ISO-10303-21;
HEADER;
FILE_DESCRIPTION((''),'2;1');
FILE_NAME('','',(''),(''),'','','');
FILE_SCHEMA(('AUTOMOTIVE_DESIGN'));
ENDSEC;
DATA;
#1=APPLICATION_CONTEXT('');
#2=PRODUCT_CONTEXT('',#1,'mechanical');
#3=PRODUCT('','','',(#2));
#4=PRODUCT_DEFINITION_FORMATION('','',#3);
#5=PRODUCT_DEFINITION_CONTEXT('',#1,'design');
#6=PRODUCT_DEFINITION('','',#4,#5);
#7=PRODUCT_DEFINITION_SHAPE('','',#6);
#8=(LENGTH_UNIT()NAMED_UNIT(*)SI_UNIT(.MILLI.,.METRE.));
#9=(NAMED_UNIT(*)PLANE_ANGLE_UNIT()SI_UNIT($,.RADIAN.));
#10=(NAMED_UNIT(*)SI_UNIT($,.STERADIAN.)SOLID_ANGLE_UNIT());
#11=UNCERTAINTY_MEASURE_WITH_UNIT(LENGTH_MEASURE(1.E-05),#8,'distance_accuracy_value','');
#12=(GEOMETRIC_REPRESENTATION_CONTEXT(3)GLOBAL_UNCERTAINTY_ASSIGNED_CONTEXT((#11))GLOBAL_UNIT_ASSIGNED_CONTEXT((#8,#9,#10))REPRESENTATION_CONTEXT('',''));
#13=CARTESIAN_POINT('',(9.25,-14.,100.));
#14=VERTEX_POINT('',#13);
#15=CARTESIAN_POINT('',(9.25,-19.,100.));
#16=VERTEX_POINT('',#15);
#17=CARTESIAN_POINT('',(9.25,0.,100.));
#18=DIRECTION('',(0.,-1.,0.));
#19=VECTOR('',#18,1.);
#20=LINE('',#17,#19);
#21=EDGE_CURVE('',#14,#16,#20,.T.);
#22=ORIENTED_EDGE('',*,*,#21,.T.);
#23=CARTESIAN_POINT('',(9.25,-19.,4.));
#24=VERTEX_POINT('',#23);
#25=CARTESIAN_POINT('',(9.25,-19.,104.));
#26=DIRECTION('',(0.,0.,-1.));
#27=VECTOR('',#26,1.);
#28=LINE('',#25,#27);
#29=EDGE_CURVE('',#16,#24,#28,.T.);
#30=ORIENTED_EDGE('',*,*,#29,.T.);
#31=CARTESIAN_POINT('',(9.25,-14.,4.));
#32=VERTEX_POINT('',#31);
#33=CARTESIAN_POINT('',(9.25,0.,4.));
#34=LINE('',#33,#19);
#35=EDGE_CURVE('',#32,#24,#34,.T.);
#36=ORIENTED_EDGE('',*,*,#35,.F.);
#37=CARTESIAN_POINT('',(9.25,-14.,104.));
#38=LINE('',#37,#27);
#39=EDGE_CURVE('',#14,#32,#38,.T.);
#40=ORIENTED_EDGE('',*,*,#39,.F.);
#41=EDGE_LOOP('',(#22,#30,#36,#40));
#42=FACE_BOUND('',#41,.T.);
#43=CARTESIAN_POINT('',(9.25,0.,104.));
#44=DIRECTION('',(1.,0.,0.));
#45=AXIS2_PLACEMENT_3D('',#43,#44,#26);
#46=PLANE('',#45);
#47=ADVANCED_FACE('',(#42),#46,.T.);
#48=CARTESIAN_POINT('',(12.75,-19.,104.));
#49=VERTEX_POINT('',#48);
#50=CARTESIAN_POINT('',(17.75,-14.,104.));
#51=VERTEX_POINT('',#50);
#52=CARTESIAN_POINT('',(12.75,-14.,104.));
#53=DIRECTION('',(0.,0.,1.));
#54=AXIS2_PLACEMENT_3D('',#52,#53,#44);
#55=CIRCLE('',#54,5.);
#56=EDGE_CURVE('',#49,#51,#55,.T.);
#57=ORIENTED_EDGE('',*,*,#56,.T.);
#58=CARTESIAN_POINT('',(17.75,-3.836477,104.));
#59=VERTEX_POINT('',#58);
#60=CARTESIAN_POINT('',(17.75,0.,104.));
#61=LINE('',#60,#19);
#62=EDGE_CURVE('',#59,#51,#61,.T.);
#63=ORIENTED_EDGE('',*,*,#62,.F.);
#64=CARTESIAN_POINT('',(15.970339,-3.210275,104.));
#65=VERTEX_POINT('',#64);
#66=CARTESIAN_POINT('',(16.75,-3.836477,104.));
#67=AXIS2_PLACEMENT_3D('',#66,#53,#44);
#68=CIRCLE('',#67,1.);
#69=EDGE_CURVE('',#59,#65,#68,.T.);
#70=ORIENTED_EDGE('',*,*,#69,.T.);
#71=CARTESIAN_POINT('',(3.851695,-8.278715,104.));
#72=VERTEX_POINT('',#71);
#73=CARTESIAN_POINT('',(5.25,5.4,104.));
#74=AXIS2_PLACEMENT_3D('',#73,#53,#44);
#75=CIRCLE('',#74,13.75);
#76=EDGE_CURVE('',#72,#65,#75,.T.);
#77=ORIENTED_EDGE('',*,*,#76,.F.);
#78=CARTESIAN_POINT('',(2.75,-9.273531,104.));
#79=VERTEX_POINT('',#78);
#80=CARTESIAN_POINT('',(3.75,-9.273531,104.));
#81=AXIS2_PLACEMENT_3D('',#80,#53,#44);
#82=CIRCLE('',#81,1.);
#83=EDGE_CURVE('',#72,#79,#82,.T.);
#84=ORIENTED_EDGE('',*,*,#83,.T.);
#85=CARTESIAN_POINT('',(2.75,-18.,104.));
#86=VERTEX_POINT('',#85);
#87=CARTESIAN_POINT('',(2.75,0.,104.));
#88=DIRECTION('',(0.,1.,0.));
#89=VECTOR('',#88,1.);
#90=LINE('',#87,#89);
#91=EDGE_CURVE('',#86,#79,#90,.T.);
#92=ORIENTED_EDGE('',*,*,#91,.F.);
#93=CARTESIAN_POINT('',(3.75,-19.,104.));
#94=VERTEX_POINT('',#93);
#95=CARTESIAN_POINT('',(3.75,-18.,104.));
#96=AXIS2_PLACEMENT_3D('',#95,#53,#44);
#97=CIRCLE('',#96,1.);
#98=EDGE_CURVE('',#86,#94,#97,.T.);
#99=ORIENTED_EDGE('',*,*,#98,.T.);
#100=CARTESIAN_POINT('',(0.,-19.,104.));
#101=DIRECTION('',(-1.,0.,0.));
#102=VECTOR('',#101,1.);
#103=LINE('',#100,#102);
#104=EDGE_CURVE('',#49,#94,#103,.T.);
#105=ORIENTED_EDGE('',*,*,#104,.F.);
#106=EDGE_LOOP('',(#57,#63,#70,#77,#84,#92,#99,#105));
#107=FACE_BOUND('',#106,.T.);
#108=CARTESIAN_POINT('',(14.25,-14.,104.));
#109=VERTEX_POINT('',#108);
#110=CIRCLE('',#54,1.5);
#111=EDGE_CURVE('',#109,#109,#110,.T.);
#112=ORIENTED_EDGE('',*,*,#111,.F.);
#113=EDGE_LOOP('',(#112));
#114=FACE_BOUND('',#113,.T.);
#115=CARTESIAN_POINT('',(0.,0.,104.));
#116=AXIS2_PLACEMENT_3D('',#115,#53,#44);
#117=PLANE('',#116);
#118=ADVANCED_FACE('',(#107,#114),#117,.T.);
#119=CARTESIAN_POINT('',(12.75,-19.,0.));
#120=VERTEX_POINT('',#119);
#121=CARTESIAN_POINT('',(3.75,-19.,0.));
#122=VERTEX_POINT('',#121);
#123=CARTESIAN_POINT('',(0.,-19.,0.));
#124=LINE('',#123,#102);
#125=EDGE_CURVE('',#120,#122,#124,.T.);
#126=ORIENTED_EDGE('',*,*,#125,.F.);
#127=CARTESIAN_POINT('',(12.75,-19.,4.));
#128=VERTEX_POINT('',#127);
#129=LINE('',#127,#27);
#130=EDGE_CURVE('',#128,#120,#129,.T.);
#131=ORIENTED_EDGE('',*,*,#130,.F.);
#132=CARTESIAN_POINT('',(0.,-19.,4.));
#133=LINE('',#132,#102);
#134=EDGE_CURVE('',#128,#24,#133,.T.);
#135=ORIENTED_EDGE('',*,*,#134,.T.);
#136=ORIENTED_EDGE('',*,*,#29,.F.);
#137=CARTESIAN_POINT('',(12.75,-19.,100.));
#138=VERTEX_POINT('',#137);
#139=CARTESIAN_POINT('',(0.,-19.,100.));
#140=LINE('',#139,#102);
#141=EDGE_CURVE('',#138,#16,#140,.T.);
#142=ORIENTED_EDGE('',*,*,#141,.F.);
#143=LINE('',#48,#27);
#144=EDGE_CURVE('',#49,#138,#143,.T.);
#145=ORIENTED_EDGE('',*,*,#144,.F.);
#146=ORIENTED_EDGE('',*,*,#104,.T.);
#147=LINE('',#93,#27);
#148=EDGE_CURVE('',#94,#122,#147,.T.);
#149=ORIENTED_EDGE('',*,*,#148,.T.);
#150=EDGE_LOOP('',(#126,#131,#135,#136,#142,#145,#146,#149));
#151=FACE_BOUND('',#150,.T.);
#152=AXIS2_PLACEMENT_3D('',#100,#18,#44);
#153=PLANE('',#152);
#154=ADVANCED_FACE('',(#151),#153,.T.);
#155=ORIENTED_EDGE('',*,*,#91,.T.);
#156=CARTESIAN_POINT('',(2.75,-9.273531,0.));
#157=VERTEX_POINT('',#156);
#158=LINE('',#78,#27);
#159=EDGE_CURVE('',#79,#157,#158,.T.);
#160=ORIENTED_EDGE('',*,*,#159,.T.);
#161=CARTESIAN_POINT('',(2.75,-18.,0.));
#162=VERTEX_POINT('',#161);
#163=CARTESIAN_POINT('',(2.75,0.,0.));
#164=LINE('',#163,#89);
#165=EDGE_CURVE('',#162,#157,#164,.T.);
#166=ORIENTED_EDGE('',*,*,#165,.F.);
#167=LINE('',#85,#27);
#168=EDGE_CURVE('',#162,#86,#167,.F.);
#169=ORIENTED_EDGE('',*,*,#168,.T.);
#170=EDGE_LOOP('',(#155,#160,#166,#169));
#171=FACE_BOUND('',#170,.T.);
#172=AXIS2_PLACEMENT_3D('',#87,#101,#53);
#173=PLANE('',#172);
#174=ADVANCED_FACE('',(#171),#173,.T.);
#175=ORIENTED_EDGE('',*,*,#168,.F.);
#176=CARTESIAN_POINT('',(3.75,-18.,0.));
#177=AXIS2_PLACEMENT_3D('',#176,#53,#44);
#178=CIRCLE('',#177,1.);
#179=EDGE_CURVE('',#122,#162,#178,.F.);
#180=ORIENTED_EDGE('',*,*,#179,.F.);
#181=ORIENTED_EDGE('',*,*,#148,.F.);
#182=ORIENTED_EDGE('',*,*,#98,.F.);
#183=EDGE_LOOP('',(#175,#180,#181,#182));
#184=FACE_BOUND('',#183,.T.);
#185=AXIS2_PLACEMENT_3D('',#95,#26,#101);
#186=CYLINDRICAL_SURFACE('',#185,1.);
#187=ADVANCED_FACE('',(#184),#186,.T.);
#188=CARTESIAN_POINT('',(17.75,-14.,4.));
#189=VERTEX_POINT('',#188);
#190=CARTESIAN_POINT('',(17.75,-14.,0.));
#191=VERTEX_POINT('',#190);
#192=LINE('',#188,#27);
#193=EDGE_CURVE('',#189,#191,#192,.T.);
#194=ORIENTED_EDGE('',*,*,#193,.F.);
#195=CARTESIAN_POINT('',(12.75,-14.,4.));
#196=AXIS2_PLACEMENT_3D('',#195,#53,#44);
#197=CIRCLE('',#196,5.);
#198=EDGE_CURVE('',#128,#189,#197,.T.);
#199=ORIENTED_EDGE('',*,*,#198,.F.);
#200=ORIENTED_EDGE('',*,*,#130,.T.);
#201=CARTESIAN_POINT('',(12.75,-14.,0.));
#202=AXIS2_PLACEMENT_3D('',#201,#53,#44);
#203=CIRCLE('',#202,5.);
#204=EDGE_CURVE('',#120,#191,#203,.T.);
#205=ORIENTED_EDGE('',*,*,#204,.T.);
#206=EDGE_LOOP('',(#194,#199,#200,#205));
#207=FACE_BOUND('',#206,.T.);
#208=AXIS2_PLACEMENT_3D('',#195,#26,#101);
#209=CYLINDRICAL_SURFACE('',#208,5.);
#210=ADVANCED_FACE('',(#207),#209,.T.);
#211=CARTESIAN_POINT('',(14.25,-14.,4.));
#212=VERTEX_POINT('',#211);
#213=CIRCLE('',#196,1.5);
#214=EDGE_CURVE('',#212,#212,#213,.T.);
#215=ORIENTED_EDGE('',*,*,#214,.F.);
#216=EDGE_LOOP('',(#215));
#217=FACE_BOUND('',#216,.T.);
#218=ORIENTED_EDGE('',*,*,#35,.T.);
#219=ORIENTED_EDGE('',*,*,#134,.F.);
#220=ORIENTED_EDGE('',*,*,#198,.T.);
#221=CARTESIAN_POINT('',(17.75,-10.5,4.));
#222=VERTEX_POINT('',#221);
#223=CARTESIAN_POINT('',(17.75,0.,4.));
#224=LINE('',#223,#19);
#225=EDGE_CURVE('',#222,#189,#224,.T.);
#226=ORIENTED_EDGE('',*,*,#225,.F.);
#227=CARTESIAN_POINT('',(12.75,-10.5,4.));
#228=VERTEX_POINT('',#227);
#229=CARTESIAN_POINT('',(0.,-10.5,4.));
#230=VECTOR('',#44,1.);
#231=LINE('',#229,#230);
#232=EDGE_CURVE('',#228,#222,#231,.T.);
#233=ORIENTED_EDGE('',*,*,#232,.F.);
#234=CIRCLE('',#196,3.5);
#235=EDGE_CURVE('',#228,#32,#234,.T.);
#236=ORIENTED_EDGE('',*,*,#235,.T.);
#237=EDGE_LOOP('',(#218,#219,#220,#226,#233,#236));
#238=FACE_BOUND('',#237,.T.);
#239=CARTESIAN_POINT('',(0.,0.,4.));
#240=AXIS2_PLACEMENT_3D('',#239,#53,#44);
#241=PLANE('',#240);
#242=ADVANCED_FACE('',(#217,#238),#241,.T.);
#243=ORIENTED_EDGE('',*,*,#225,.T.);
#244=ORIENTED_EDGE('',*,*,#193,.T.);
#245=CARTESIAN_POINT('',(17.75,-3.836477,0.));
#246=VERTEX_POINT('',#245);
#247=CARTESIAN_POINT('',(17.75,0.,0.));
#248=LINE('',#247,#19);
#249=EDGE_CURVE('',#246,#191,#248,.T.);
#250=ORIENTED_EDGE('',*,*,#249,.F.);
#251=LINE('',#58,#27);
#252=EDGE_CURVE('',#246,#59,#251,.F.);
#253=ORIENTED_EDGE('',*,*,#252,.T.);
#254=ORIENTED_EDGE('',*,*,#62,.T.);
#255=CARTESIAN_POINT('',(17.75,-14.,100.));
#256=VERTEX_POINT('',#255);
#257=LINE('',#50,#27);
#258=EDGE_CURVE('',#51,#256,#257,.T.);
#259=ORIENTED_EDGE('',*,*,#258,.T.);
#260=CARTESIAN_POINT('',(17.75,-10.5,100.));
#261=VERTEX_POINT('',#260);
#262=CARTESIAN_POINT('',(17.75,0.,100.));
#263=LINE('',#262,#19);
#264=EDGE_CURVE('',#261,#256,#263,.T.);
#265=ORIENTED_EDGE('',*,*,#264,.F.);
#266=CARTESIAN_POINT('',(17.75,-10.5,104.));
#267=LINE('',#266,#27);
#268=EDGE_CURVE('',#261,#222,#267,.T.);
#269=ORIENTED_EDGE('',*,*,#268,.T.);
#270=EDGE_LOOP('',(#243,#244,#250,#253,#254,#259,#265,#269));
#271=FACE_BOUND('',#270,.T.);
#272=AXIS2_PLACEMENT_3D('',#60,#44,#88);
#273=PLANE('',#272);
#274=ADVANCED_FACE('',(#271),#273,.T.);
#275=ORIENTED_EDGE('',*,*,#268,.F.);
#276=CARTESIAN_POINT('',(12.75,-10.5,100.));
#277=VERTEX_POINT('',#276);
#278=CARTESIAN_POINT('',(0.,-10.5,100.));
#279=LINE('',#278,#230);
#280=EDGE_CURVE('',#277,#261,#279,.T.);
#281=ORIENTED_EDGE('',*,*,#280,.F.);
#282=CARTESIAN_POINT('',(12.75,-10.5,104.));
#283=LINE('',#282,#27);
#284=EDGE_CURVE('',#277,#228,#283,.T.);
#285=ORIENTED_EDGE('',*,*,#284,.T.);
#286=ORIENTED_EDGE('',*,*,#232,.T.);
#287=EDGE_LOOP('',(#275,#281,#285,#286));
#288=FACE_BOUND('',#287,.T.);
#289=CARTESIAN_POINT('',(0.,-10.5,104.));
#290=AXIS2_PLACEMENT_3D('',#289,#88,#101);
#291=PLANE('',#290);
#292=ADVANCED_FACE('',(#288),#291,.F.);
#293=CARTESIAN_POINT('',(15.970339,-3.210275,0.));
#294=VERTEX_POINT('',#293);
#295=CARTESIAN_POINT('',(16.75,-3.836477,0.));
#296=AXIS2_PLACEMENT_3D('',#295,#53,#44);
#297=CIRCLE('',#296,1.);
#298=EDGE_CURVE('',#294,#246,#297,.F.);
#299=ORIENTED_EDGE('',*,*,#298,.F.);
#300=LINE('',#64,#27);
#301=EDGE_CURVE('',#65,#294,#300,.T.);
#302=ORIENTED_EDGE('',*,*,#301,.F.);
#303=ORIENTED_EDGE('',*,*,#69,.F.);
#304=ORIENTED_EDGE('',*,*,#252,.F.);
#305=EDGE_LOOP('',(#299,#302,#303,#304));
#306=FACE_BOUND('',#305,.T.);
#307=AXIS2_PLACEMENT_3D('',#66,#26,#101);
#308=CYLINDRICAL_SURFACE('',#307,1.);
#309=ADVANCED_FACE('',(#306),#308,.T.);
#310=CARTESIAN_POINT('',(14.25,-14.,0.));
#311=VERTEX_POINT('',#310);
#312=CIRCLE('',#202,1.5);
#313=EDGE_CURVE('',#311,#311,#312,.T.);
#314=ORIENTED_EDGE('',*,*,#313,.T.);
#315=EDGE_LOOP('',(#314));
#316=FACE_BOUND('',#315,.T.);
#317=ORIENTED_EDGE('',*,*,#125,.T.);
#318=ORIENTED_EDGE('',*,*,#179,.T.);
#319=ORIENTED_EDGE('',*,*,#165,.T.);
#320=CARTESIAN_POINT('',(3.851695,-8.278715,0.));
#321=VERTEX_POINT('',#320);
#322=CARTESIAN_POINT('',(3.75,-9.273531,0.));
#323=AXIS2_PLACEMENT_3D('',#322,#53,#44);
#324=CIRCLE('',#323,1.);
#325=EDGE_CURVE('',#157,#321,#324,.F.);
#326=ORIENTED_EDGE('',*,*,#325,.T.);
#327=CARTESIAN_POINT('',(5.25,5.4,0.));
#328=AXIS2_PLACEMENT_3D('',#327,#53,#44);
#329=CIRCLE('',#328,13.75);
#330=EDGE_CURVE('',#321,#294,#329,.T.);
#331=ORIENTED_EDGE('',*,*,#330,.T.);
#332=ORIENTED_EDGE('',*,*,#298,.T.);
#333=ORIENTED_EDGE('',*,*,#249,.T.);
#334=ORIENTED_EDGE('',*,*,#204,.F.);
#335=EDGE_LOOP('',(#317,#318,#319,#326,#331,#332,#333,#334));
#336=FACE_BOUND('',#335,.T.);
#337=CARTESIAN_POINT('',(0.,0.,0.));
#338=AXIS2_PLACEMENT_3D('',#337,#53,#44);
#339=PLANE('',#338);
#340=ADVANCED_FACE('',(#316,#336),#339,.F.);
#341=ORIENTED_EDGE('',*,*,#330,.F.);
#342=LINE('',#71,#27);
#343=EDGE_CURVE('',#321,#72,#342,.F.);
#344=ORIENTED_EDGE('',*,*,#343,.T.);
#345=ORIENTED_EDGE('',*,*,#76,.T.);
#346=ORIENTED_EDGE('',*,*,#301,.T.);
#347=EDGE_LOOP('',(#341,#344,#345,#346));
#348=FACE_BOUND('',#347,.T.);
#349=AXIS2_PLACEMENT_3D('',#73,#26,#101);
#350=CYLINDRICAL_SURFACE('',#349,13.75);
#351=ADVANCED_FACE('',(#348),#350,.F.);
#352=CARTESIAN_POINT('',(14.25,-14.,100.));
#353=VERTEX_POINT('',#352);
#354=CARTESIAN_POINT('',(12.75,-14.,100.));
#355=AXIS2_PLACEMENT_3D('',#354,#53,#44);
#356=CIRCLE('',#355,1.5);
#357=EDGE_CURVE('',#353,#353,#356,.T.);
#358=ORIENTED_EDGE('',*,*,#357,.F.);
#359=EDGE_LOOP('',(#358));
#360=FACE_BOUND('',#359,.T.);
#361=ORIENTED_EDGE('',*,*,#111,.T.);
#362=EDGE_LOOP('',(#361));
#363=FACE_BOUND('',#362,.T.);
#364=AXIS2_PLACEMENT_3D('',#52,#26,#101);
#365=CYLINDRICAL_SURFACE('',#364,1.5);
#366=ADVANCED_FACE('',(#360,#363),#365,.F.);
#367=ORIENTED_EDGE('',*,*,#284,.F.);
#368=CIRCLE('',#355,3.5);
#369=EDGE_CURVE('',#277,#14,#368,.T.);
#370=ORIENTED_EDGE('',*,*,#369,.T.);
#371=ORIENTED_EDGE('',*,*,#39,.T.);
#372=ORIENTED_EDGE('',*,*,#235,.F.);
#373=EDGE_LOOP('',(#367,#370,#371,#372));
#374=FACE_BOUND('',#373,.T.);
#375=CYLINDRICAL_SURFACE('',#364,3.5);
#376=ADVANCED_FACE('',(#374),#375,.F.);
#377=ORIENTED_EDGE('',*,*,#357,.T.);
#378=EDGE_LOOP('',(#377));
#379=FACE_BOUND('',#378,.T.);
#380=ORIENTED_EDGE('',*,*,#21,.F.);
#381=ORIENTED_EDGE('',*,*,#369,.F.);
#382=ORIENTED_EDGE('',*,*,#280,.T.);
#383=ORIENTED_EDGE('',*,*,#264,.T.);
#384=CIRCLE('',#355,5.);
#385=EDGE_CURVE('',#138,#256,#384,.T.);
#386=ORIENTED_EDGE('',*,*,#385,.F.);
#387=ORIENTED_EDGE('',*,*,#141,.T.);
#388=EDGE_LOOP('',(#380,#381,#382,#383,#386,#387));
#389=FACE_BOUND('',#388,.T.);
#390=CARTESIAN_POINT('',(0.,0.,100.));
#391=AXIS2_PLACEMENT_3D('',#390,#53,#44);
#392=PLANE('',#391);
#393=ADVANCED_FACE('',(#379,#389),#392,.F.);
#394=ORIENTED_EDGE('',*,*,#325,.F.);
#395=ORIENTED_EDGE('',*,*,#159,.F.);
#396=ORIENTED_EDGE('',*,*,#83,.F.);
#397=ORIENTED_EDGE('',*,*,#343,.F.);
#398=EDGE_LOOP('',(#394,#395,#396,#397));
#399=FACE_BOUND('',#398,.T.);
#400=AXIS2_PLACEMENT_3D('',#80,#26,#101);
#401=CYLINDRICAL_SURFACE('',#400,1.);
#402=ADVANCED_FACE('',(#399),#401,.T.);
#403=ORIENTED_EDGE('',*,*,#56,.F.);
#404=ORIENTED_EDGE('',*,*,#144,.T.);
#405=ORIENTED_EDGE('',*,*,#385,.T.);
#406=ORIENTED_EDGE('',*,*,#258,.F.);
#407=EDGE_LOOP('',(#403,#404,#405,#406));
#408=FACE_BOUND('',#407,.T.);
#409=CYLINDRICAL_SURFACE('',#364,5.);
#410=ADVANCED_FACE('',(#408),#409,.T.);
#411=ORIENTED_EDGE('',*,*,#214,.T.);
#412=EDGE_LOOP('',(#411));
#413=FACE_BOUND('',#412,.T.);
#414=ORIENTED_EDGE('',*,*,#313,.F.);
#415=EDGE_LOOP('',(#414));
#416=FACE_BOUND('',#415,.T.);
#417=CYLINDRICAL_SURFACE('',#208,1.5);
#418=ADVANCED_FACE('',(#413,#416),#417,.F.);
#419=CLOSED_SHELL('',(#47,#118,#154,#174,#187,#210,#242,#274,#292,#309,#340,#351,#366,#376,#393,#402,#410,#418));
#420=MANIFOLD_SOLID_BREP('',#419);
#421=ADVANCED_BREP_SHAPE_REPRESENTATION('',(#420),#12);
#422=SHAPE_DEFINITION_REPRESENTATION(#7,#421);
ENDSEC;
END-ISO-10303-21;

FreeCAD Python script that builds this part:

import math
import FreeCAD as App
import Part
import Sketcher

V = App.Vector


def edges_at(feature, points):
    """Names of the edges that pass closest to the given points."""
    edges = feature.Shape.Edges
    near = lambda p: min(range(len(edges)), key=lambda i: edges[i].distToShape(Part.Vertex(*p))[0])
    return sorted({f"Edge{near(p) + 1}" for p in points})

doc = App.newDocument("Part")
body = doc.addObject("PartDesign::Body", "Body")

# Sketch on XY plane
sketch1 = body.newObject("Sketcher::SketchObject", "Sketch")
sketch1.AttachmentSupport = (doc.getObject("XY_Plane"), [""])
sketch1.MapMode = "FlatFace"
sketch1.addGeometry([
    Part.LineSegment(V(17.75, -10.5, 0), V(17.75, -0.32822, 0)),  # 0
    Part.ArcOfCircle(Part.Circle(V(5.25, 5.4, 0), V(0, 0, 1), 13.75), math.radians(-100.475682), math.radians(-24.619977)),  # 1
    Part.LineSegment(V(2.75, -8.120817, 0), V(2.75, -19, 0)),  # 2
    Part.LineSegment(V(2.75, -19, 0), V(9.25, -19, 0)),  # 3
    Part.LineSegment(V(9.25, -19, 0), V(9.25, -14, 0)),  # 4
    Part.ArcOfCircle(Part.Circle(V(12.75, -14, 0), V(0, 0, 1), 3.5), math.radians(90), math.radians(180)),  # 5
    Part.LineSegment(V(12.75, -10.5, 0), V(17.75, -10.5, 0)),  # 6
], False)
sketch1.addConstraint([
    Sketcher.Constraint("Coincident", 0, 2, 1, 2),
    Sketcher.Constraint("Coincident", 1, 1, 2, 1),
    Sketcher.Constraint("Coincident", 2, 2, 3, 1),
    Sketcher.Constraint("Coincident", 3, 2, 4, 1),
    Sketcher.Constraint("Tangent", 4, 2, 5, 2),
    Sketcher.Constraint("Tangent", 5, 1, 6, 1),
    Sketcher.Constraint("Coincident", 6, 2, 0, 1),
    Sketcher.Constraint("Vertical", 0),
    Sketcher.Constraint("Vertical", 2),
    Sketcher.Constraint("Horizontal", 3),
    Sketcher.Constraint("Vertical", 4),
    Sketcher.Constraint("Horizontal", 6),
    Sketcher.Constraint("Equal", 6, 4),
    Sketcher.Constraint("Radius", 5, 3.5),
    Sketcher.Constraint("DistanceX", 6, 1, 6, 2, 5.0),
    Sketcher.Constraint("Radius", 1, 13.75),
    Sketcher.Constraint("DistanceX", 3, 1, 3, 2, 6.5),
    Sketcher.Constraint("DistanceY", 5, 3, -1, 1, 14.0),
    Sketcher.Constraint("DistanceX", 1, 3, 3, 2, 4.0),
    Sketcher.Constraint("DistanceY", -1, 1, 1, 3, 5.4),
    Sketcher.Constraint("DistanceX", -1, 1, 1, 3, 5.25),
])
pad1 = body.newObject("PartDesign::Pad", "Pad")
pad1.Profile = sketch1
pad1.Length = 104

# Sketch on XY plane
sketch2 = body.newObject("Sketcher::SketchObject", "Sketch001")
sketch2.AttachmentSupport = (doc.getObject("XY_Plane"), [""])
sketch2.MapMode = "FlatFace"
sketch2.addGeometry([
    Part.LineSegment(V(17.75, -14, 0), V(17.75, -10.5, 0)),  # 0
    Part.LineSegment(V(17.75, -10.5, 0), V(12.75, -10.5, 0)),  # 1
    Part.ArcOfCircle(Part.Circle(V(12.75, -14, 0), V(0, 0, 1), 3.5), math.radians(90), math.radians(180)),  # 2
    Part.LineSegment(V(9.25, -14, 0), V(9.25, -19, 0)),  # 3
    Part.LineSegment(V(9.25, -19, 0), V(12.75, -19, 0)),  # 4
    Part.ArcOfCircle(Part.Circle(V(12.75, -14, 0), V(0, 0, 1), 5), math.radians(-90), math.radians(0)),  # 5
    Part.Circle(V(12.75, -14, 0), V(0, 0, 1), 1.5),  # 6
], False)
sketch2.addConstraint([
    Sketcher.Constraint("Coincident", 0, 2, 1, 1),
    Sketcher.Constraint("Tangent", 1, 2, 2, 1),
    Sketcher.Constraint("Tangent", 2, 2, 3, 1),
    Sketcher.Constraint("Coincident", 3, 2, 4, 1),
    Sketcher.Constraint("Tangent", 4, 2, 5, 1),
    Sketcher.Constraint("Tangent", 5, 2, 0, 1),
    Sketcher.Constraint("Vertical", 0),
    Sketcher.Constraint("Horizontal", 1),
    Sketcher.Constraint("Vertical", 3),
    Sketcher.Constraint("Horizontal", 4),
    Sketcher.Constraint("Coincident", 5, 3, 2, 3),
    Sketcher.Constraint("Coincident", 6, 3, 2, 3),
    Sketcher.Constraint("Diameter", 6, 3.0),
    Sketcher.Constraint("Radius", 5, 5.0),
    Sketcher.Constraint("Radius", 2, 3.5),
    Sketcher.Constraint("DistanceY", 2, 3, -1, 1, 14.0),
    Sketcher.Constraint("DistanceX", -1, 1, 2, 3, 12.75),
])
pad2 = body.newObject("PartDesign::Pad", "Pad001")
pad2.Profile = sketch2
pad2.Length = 4

# Sketch on XY plane
sketch3 = body.newObject("Sketcher::SketchObject", "Sketch002")
sketch3.AttachmentSupport = (doc.getObject("XY_Plane"), [""])
sketch3.MapMode = "FlatFace"
sketch3.AttachmentOffset = App.Placement(V(0, 0, 100), App.Rotation())
sketch3.addGeometry([
    Part.LineSegment(V(17.75, -14, 0), V(17.75, -10.5, 0)),  # 0
    Part.LineSegment(V(17.75, -10.5, 0), V(12.75, -10.5, 0)),  # 1
    Part.ArcOfCircle(Part.Circle(V(12.75, -14, 0), V(0, 0, 1), 3.5), math.radians(90), math.radians(180)),  # 2
    Part.LineSegment(V(9.25, -14, 0), V(9.25, -19, 0)),  # 3
    Part.LineSegment(V(9.25, -19, 0), V(12.75, -19, 0)),  # 4
    Part.ArcOfCircle(Part.Circle(V(12.75, -14, 0), V(0, 0, 1), 5), math.radians(-90), math.radians(0)),  # 5
    Part.Circle(V(12.75, -14, 0), V(0, 0, 1), 1.5),  # 6
], False)
sketch3.addConstraint([
    Sketcher.Constraint("Coincident", 0, 2, 1, 1),
    Sketcher.Constraint("Tangent", 1, 2, 2, 1),
    Sketcher.Constraint("Tangent", 2, 2, 3, 1),
    Sketcher.Constraint("Coincident", 3, 2, 4, 1),
    Sketcher.Constraint("Tangent", 4, 2, 5, 1),
    Sketcher.Constraint("Tangent", 5, 2, 0, 1),
    Sketcher.Constraint("Vertical", 0),
    Sketcher.Constraint("Horizontal", 1),
    Sketcher.Constraint("Vertical", 3),
    Sketcher.Constraint("Horizontal", 4),
    Sketcher.Constraint("Coincident", 5, 3, 2, 3),
    Sketcher.Constraint("Coincident", 6, 3, 2, 3),
    Sketcher.Constraint("Diameter", 6, 3.0),
    Sketcher.Constraint("Radius", 5, 5.0),
    Sketcher.Constraint("Radius", 2, 3.5),
    Sketcher.Constraint("DistanceY", 2, 3, -1, 1, 14.0),
    Sketcher.Constraint("DistanceX", -1, 1, 2, 3, 12.75),
])
pad3 = body.newObject("PartDesign::Pad", "Pad002")
pad3.Profile = sketch3
pad3.Length = 4
doc.recompute()

fillet = body.newObject("PartDesign::Fillet", "Fillet")
fillet.Base = (pad3, edges_at(pad3, [(2.75, -19, 52), (2.75, -8.121, 52), (17.75, -0.328, 52)]))
fillet.Radius = 1

doc.recompute()
